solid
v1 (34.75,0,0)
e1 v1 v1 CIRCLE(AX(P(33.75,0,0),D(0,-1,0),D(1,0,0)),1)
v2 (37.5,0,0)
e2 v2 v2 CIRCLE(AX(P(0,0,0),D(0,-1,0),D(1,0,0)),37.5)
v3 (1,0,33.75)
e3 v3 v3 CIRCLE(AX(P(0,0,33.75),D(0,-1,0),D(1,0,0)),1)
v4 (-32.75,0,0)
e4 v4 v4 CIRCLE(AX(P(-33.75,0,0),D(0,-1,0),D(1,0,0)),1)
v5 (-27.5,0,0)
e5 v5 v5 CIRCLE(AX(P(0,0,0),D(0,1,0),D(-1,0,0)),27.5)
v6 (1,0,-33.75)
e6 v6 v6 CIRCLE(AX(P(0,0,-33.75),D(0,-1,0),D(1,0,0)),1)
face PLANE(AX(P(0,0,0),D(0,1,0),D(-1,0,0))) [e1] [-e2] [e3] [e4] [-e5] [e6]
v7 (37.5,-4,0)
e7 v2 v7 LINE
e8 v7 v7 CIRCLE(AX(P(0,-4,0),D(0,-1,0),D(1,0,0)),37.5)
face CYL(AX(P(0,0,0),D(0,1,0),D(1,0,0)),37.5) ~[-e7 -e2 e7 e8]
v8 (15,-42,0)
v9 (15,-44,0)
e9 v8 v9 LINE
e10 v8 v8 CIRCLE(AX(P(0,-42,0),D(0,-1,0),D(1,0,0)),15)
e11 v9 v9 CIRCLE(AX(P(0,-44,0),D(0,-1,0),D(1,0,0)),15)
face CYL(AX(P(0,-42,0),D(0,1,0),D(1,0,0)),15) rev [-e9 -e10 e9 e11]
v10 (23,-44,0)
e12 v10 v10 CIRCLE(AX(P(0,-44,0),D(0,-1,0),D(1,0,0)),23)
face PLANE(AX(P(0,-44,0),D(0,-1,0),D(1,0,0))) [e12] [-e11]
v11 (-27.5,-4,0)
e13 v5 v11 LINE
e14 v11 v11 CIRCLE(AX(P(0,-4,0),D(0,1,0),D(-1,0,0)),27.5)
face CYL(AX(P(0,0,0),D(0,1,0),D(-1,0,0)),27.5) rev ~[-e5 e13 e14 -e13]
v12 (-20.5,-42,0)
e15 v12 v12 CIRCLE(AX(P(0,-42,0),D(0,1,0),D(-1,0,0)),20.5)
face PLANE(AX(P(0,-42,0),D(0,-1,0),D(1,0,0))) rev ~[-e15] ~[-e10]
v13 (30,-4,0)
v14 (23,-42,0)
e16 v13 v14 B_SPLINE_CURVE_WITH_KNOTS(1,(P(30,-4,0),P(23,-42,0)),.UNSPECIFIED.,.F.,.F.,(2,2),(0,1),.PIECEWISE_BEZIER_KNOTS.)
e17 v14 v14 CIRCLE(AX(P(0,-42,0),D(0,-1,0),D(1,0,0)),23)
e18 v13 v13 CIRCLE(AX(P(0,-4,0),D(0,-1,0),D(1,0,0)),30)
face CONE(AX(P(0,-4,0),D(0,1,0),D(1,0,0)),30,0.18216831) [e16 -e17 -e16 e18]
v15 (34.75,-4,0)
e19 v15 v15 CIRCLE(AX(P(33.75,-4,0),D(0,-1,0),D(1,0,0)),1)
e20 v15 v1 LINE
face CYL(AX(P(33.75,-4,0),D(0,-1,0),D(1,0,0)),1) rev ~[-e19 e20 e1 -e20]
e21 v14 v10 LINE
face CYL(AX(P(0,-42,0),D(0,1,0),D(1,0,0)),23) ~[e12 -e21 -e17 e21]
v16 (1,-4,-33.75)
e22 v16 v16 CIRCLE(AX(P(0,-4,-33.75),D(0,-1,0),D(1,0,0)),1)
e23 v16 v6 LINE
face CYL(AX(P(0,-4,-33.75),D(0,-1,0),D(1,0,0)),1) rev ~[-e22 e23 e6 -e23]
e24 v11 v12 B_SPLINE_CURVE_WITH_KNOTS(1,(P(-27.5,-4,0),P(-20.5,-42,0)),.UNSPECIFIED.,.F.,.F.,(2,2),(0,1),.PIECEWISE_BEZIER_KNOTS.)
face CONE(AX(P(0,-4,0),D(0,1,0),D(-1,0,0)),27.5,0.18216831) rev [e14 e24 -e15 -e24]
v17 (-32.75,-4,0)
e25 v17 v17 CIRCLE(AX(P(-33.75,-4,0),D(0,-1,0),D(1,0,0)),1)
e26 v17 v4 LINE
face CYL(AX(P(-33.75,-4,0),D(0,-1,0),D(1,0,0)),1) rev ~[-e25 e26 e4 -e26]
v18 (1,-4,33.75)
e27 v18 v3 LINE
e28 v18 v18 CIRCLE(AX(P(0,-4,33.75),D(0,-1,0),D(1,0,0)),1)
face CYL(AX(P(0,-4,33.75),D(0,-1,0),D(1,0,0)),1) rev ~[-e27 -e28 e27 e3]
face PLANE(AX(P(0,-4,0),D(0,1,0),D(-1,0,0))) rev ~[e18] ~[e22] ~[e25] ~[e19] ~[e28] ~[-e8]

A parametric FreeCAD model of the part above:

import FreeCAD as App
import Part
import Sketcher

V = App.Vector
Q = App.Units.Quantity

doc = App.newDocument("Part")
params = doc.addObject("Spreadsheet::Sheet", "Params")
for row, (alias, value) in enumerate([
    ("sketch1_diameter", "75 mm"),
    ("sketch1_diameter2", "60 mm"),
    ("pad1_length", "4 mm"),
    ("sketch2_diameter", "2 mm"),
    ("pocket1_length", "25 mm"),
    ("sketch3_diameter", "60 mm"),
    ("sketch3_diameter2", "55 mm"),
    ("pad2_length", "4 mm"),
    ("sketch4_diameter", "60 mm"),
    ("sketch5_diameter", "46 mm"),
    ("sketch6_diameter", "55 mm"),
    ("sketch7_diameter", "41 mm"),
    ("sketch8_diameter", "46 mm"),
    ("sketch8_diameter2", "30 mm"),
    ("pad3_length", "2 mm"),
], start=1):
    params.set(f"A{row}", alias)
    params.set(f"B{row}", "=" + value)
    params.setAlias(f"B{row}", alias)

body = doc.addObject("PartDesign::Body", "Body")

sketch1 = doc.addObject("Sketcher::SketchObject", "Sketch")
body.addObject(sketch1)
sketch1.AttachmentSupport = (doc.XZ_Plane, [""])
sketch1.MapMode = "FlatFace"
sketch1.addGeometry([
    Part.Circle(V(0, 0, 0), V(0, 0, 1), 37.5),
    Part.Circle(V(0, 0, 0), V(0, 0, 1), 30),
], False)
sketch1.addConstraint([
    Sketcher.Constraint("Coincident", 0, 3, -1, 1),
    Sketcher.Constraint("Coincident", 1, 3, -1, 1),
    Sketcher.Constraint("Diameter", 0, Q("75 mm")),
    Sketcher.Constraint("Diameter", 1, Q("60 mm")),
])
sketch1.setExpression("Constraints[2]", "Params.sketch1_diameter")
sketch1.setExpression("Constraints[3]", "Params.sketch1_diameter2")
pad1 = doc.addObject("PartDesign::Pad", "Pad")
body.addObject(pad1)
pad1.Profile = sketch1
pad1.setExpression("Length", "Params.pad1_length")

sketch2 = doc.addObject("Sketcher::SketchObject", "Sketch001")
body.addObject(sketch2)
sketch2.AttachmentSupport = (doc.XZ_Plane, [""])
sketch2.MapMode = "FlatFace"
sketch2.AttachmentOffset = App.Placement(V(0, 0, 4), App.Rotation())
sketch2.addGeometry([
    Part.Circle(V(0, 33.75, 0), V(0, 0, 1), 1),
    Part.Circle(V(-33.75, 0, 0), V(0, 0, 1), 1),
    Part.Circle(V(33.75, 0, 0), V(0, 0, 1), 1),
    Part.Circle(V(0, -33.75, 0), V(0, 0, 1), 1),
], False)
sketch2.addConstraint([
    Sketcher.Constraint("Equal", 0, 1),
    Sketcher.Constraint("Equal", 1, 2),
    Sketcher.Constraint("Equal", 2, 3),
    Sketcher.Constraint("Symmetric", 1, 3, 2, 3, -1, 1),
    Sketcher.Constraint("Symmetric", 0, 3, 3, 3, -1, 1),
    Sketcher.Constraint("PointOnObject", 0, 3, -2),
    Sketcher.Constraint("PointOnObject", 1, 3, -1),
    Sketcher.Constraint("Diameter", 0, Q("2 mm")),
    Sketcher.Constraint("DistanceX", 1, 3, 2, 3, Q("67.5 mm")),
    Sketcher.Constraint("DistanceY", 3, 3, 0, 3, Q("67.5 mm")),
])
sketch2.setExpression("Constraints[7]", "Params.sketch2_diameter")
pocket1 = doc.addObject("PartDesign::Pocket", "Pocket")
body.addObject(pocket1)
pocket1.Profile = sketch2
pocket1.setExpression("Length", "Params.pocket1_length")

sketch3 = doc.addObject("Sketcher::SketchObject", "Sketch002")
body.addObject(sketch3)
sketch3.AttachmentSupport = (doc.XZ_Plane, [""])
sketch3.MapMode = "FlatFace"
sketch3.addGeometry([
    Part.Circle(V(0, 0, 0), V(0, 0, 1), 30),
    Part.Circle(V(0, 0, 0), V(0, 0, 1), 27.5),
], False)
sketch3.addConstraint([
    Sketcher.Constraint("Coincident", 0, 3, -1, 1),
    Sketcher.Constraint("Coincident", 1, 3, -1, 1),
    Sketcher.Constraint("Diameter", 0, Q("60 mm")),
    Sketcher.Constraint("Diameter", 1, Q("55 mm")),
])
sketch3.setExpression("Constraints[2]", "Params.sketch3_diameter")
sketch3.setExpression("Constraints[3]", "Params.sketch3_diameter2")
pad2 = doc.addObject("PartDesign::Pad", "Pad001")
body.addObject(pad2)
pad2.Profile = sketch3
pad2.setExpression("Length", "Params.pad2_length")

sketch4 = doc.addObject("Sketcher::SketchObject", "Sketch003")
body.addObject(sketch4)
sketch4.AttachmentSupport = (doc.XZ_Plane, [""])
sketch4.MapMode = "FlatFace"
sketch4.AttachmentOffset = App.Placement(V(0, 0, 4), App.Rotation())
sketch4.addGeometry(Part.Circle(V(0, 0, 0), V(0, 0, 1), 30), False)
sketch4.addConstraint([
    Sketcher.Constraint("Coincident", 0, 3, -1, 1),
    Sketcher.Constraint("Diameter", 0, Q("60 mm")),
])
sketch4.setExpression("Constraints[1]", "Params.sketch4_diameter")

sketch5 = doc.addObject("Sketcher::SketchObject", "Sketch004")
body.addObject(sketch5)
sketch5.AttachmentSupport = (doc.XZ_Plane, [""])
sketch5.MapMode = "FlatFace"
sketch5.AttachmentOffset = App.Placement(V(0, 0, 42), App.Rotation())
sketch5.addGeometry(Part.Circle(V(0, 0, 0), V(0, 0, 1), 23), False)
sketch5.addConstraint([
    Sketcher.Constraint("Coincident", 0, 3, -1, 1),
    Sketcher.Constraint("Diameter", 0, Q("46 mm")),
])
sketch5.setExpression("Constraints[1]", "Params.sketch5_diameter")

additiveloft = doc.addObject("PartDesign::AdditiveLoft", "AdditiveLoft")
body.addObject(additiveloft)
additiveloft.Profile = sketch4
additiveloft.Sections = [sketch5]

sketch6 = doc.addObject("Sketcher::SketchObject", "Sketch005")
body.addObject(sketch6)
sketch6.AttachmentSupport = (doc.XZ_Plane, [""])
sketch6.MapMode = "FlatFace"
sketch6.AttachmentOffset = App.Placement(V(0, 0, 4), App.Rotation())
sketch6.addGeometry(Part.Circle(V(0, 0, 0), V(0, 0, 1), 27.5), False)
sketch6.addConstraint([
    Sketcher.Constraint("Coincident", 0, 3, -1, 1),
    Sketcher.Constraint("Diameter", 0, Q("55 mm")),
])
sketch6.setExpression("Constraints[1]", "Params.sketch6_diameter")

sketch7 = doc.addObject("Sketcher::SketchObject", "Sketch006")
body.addObject(sketch7)
sketch7.AttachmentSupport = (doc.XZ_Plane, [""])
sketch7.MapMode = "FlatFace"
sketch7.AttachmentOffset = App.Placement(V(0, 0, 42), App.Rotation())
sketch7.addGeometry(Part.Circle(V(0, 0, 0), V(0, 0, 1), 20.5), False)
sketch7.addConstraint([
    Sketcher.Constraint("Coincident", 0, 3, -1, 1),
    Sketcher.Constraint("Diameter", 0, Q("41 mm")),
])
sketch7.setExpression("Constraints[1]", "Params.sketch7_diameter")

subtractiveloft = doc.addObject("PartDesign::SubtractiveLoft", "SubtractiveLoft")
body.addObject(subtractiveloft)
subtractiveloft.Profile = sketch6
subtractiveloft.Sections = [sketch7]

sketch8 = doc.addObject("Sketcher::SketchObject", "Sketch007")
body.addObject(sketch8)
sketch8.AttachmentSupport = (doc.XZ_Plane, [""])
sketch8.MapMode = "FlatFace"
sketch8.AttachmentOffset = App.Placement(V(0, 0, 42), App.Rotation())
sketch8.addGeometry([
    Part.Circle(V(0, 0, 0), V(0, 0, 1), 23),
    Part.Circle(V(0, 0, 0), V(0, 0, 1), 15),
], False)
sketch8.addConstraint([
    Sketcher.Constraint("Coincident", 0, 3, -1, 1),
    Sketcher.Constraint("Coincident", 1, 3, -1, 1),
    Sketcher.Constraint("Diameter", 0, Q("46 mm")),
    Sketcher.Constraint("Diameter", 1, Q("30 mm")),
])
sketch8.setExpression("Constraints[2]", "Params.sketch8_diameter")
sketch8.setExpression("Constraints[3]", "Params.sketch8_diameter2")
pad3 = doc.addObject("PartDesign::Pad", "Pad002")
body.addObject(pad3)
pad3.Profile = sketch8
pad3.setExpression("Length", "Params.pad3_length")

doc.recompute()
